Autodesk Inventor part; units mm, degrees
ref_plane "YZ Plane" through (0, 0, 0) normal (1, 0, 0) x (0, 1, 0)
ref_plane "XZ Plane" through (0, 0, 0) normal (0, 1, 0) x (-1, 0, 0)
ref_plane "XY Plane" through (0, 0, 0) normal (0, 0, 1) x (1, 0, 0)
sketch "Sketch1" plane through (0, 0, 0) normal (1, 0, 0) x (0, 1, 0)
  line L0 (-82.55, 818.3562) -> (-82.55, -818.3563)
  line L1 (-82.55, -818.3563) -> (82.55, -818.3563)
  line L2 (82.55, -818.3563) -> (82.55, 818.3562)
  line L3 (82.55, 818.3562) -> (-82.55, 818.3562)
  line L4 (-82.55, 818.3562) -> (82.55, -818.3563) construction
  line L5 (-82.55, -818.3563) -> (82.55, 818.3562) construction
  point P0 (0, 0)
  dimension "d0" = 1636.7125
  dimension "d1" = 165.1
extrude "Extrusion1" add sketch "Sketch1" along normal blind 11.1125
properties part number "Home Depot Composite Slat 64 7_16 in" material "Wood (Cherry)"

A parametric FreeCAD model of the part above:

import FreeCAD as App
import Part
import Sketcher
Q = App.Units.Quantity

doc = App.newDocument("Part")
params = doc.addObject("Spreadsheet::Sheet", "Params")
for row, (alias, value) in enumerate([
    ("sketch1_width", "6.5 in"),
    ("sketch1_height", "64.4375 in"),
    ("pad1_length", "0.4375 in"),
], start=1):
    params.set(f"A{row}", alias)
    params.set(f"B{row}", "=" + value)
    params.setAlias(f"B{row}", alias)

body = doc.addObject("PartDesign::Body", "Body")

sketch1 = doc.addObject("Sketcher::SketchObject", "Sketch")
body.addObject(sketch1)
sketch1.AttachmentSupport = (doc.YZ_Plane, [""])
sketch1.MapMode = "FlatFace"
sketch1.addGeometry([
    Part.LineSegment(App.Vector(82.55, 818.3562, 0), App.Vector(-82.55, 818.3562, 0)),
    Part.LineSegment(App.Vector(-82.55, 818.3562, 0), App.Vector(-82.55, -818.3563, 0)),
    Part.LineSegment(App.Vector(-82.55, -818.3563, 0), App.Vector(82.55, -818.3563, 0)),
    Part.LineSegment(App.Vector(82.55, -818.3563, 0), App.Vector(82.55, 818.3562, 0)),
], False)
sketch1.addConstraint([
    Sketcher.Constraint("Coincident", 0, 2, 1, 1),
    Sketcher.Constraint("Coincident", 1, 2, 2, 1),
    Sketcher.Constraint("Coincident", 2, 2, 3, 1),
    Sketcher.Constraint("Coincident", 3, 2, 0, 1),
    Sketcher.Constraint("Horizontal", 0),
    Sketcher.Constraint("Vertical", 1),
    Sketcher.Constraint("Horizontal", 2),
    Sketcher.Constraint("Vertical", 3),
    Sketcher.Constraint("Symmetric", 0, 2, 2, 2, -1, 1),
    Sketcher.Constraint("DistanceX", 0, 2, 0, 1, Q("6.5 in")),
    Sketcher.Constraint("DistanceY", 1, 2, 1, 1, Q("64.4375 in")),
])
sketch1.setExpression("Constraints[9]", "Params.sketch1_width")
sketch1.setExpression("Constraints[10]", "Params.sketch1_height")
pad1 = doc.addObject("PartDesign::Pad", "Pad")
body.addObject(pad1)
pad1.Profile = sketch1
pad1.setExpression("Length", "Params.pad1_length")

doc.recompute()
